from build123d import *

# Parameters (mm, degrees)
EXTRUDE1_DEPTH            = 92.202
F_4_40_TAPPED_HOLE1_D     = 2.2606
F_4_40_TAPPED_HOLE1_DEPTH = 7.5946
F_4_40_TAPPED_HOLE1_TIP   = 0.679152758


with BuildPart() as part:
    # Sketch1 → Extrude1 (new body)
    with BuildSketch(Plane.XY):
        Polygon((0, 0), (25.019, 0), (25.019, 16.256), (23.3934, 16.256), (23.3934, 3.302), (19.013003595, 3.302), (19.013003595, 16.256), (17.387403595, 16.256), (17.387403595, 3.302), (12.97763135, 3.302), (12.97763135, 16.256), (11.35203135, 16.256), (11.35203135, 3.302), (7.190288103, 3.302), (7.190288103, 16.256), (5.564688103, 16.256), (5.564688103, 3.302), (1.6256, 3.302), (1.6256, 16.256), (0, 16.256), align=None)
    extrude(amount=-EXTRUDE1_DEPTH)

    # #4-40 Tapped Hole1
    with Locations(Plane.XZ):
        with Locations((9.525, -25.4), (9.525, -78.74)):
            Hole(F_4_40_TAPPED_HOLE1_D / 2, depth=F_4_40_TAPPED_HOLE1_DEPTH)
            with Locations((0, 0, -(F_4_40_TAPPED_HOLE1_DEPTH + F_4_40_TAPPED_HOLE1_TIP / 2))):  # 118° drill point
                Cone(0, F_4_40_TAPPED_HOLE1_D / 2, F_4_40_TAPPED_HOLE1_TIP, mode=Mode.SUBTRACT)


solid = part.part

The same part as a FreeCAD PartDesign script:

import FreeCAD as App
import Part
import Sketcher

V = App.Vector
Q = App.Units.Quantity


def add_polygon(sketch, points):
    """Adds a closed chain of lines whose ends are joined by coincident constraints."""
    first, n = sketch.GeometryCount, len(points)
    for a, b in zip(points, points[1:] + points[:1]):
        sketch.addGeometry(Part.LineSegment(App.Vector(*a, 0), App.Vector(*b, 0)), False)
    for i in range(n):
        sketch.addConstraint(Sketcher.Constraint("Coincident", first + i, 2, first + (i + 1) % n, 1))

doc = App.newDocument("Part")
params = doc.addObject("Spreadsheet::Sheet", "Params")
for row, (alias, value) in enumerate([
    ("sketch1_height", "0.64 in"),
    ("sketch1_height2", "0.51 in"),
    ("sketch1_width", "0.985 in"),
    ("sketch1_width2", "0.064 in"),
    ("pad1_length", "3.63 in"),
    ("sketch2_diameter", "0.089 in"),
    ("hole_diameter", "0.089 in"),
    ("hole_depth", "0.299 in"),
], start=1):
    params.set(f"A{row}", alias)
    params.set(f"B{row}", "=" + value)
    params.setAlias(f"B{row}", alias)

body = doc.addObject("PartDesign::Body", "Body")

# Sketch on XY plane
sketch1 = body.newObject("Sketcher::SketchObject", "Sketch")
sketch1.AttachmentSupport = (doc.getObject("XY_Plane"), [""])
sketch1.MapMode = "FlatFace"
add_polygon(sketch1, [(0, 0), (25.019, 0), (25.019, 16.256), (23.3934, 16.256), (23.3934, 3.302), (19.013004, 3.302), (19.013004, 16.256), (17.387404, 16.256), (17.387404, 3.302), (12.977631, 3.302), (12.977631, 16.256), (11.352031, 16.256), (11.352031, 3.302), (7.190288, 3.302), (7.190288, 16.256), (5.564688, 16.256), (5.564688, 3.302), (1.6256, 3.302), (1.6256, 16.256), (0, 16.256)])  # lines 0-19
sketch1.addConstraint([
    Sketcher.Constraint("Horizontal", 0),
    Sketcher.Constraint("Vertical", 1),
    Sketcher.Constraint("Horizontal", 2),
    Sketcher.Constraint("Vertical", 3),
    Sketcher.Constraint("Horizontal", 4),
    Sketcher.Constraint("Vertical", 5),
    Sketcher.Constraint("Horizontal", 6),
    Sketcher.Constraint("Vertical", 7),
    Sketcher.Constraint("Horizontal", 8),
    Sketcher.Constraint("Vertical", 9),
    Sketcher.Constraint("Horizontal", 10),
    Sketcher.Constraint("Vertical", 11),
    Sketcher.Constraint("Horizontal", 12),
    Sketcher.Constraint("Vertical", 13),
    Sketcher.Constraint("Horizontal", 14),
    Sketcher.Constraint("Vertical", 15),
    Sketcher.Constraint("Horizontal", 16),
    Sketcher.Constraint("Vertical", 17),
    Sketcher.Constraint("Horizontal", 18),
    Sketcher.Constraint("Vertical", 19),
    Sketcher.Constraint("Coincident", 19, 2, -1, 1),
    Sketcher.Constraint("Horizontal", 2, 2, 5, 2),
    Sketcher.Constraint("Horizontal", 4, 2, 7, 2),
    Sketcher.Constraint("Horizontal", 6, 2, 9, 2),
    Sketcher.Constraint("Horizontal", 8, 2, 11, 2),
    Sketcher.Constraint("Horizontal", 10, 2, 13, 2),
    Sketcher.Constraint("Horizontal", 12, 2, 15, 2),
    Sketcher.Constraint("Horizontal", 14, 2, 17, 2),
    Sketcher.Constraint("Equal", 2, 6),
    Sketcher.Constraint("Equal", 6, 10),
    Sketcher.Constraint("Equal", 10, 14),
    Sketcher.Constraint("Equal", 14, 18),
    Sketcher.Constraint("DistanceY", 1, 1, 1, 2, Q("0.64 in")),
    Sketcher.Constraint("DistanceY", 3, 2, 3, 1, Q("0.51 in")),
    Sketcher.Constraint("DistanceX", 0, 1, 0, 2, Q("0.985 in")),
    Sketcher.Constraint("DistanceX", 2, 2, 2, 1, Q("0.064 in")),
    Sketcher.Constraint("DistanceX", 16, 2, 16, 1, Q("3.939088 mm")),
    Sketcher.Constraint("DistanceX", 4, 2, 4, 1, Q("4.380396 mm")),
    Sketcher.Constraint("DistanceX", 8, 2, 8, 1, Q("4.409772 mm")),
])
sketch1.setExpression("Constraints[52]", "Params.sketch1_height")
sketch1.setExpression("Constraints[53]", "Params.sketch1_height2")
sketch1.setExpression("Constraints[54]", "Params.sketch1_width")
sketch1.setExpression("Constraints[55]", "Params.sketch1_width2")
pad1 = body.newObject("PartDesign::Pad", "Pad")
pad1.Profile = sketch1
pad1.setExpression("Length", "Params.pad1_length")
pad1.Reversed = True

# Sketch on XZ plane
sketch2 = body.newObject("Sketcher::SketchObject", "Sketch001")
sketch2.AttachmentSupport = (doc.getObject("XZ_Plane"), [""])
sketch2.MapMode = "FlatFace"
sketch2.addGeometry([
    Part.Circle(V(9.525, -25.4, 0), V(0, 0, 1), 1.1303),
    Part.Circle(V(9.525, -78.74, 0), V(0, 0, 1), 1.1303),
], False)
sketch2.addConstraint([
    Sketcher.Constraint("Equal", 0, 1),
    Sketcher.Constraint("Vertical", 0, 3, 1, 3),
    Sketcher.Constraint("Diameter", 0, Q("0.089 in")),
    Sketcher.Constraint("DistanceY", 0, 3, -1, 1, Q("1 in")),
    Sketcher.Constraint("DistanceY", 1, 3, -1, 1, Q("3.1 in")),
    Sketcher.Constraint("DistanceX", -1, 1, 0, 3, Q("0.375 in")),
])
sketch2.setExpression("Constraints[2]", "Params.sketch2_diameter")
doc.recompute()
hole = body.newObject("PartDesign::Hole", "Hole")
hole.Profile = sketch2
hole.ThreadType = "None"
hole.setExpression("Diameter", "Params.hole_diameter")
hole.DepthType = "Dimension"
hole.setExpression("Depth", "Params.hole_depth")
hole.DrillPoint = "Angled"
hole.DrillPointAngle = 118

doc.recompute()
